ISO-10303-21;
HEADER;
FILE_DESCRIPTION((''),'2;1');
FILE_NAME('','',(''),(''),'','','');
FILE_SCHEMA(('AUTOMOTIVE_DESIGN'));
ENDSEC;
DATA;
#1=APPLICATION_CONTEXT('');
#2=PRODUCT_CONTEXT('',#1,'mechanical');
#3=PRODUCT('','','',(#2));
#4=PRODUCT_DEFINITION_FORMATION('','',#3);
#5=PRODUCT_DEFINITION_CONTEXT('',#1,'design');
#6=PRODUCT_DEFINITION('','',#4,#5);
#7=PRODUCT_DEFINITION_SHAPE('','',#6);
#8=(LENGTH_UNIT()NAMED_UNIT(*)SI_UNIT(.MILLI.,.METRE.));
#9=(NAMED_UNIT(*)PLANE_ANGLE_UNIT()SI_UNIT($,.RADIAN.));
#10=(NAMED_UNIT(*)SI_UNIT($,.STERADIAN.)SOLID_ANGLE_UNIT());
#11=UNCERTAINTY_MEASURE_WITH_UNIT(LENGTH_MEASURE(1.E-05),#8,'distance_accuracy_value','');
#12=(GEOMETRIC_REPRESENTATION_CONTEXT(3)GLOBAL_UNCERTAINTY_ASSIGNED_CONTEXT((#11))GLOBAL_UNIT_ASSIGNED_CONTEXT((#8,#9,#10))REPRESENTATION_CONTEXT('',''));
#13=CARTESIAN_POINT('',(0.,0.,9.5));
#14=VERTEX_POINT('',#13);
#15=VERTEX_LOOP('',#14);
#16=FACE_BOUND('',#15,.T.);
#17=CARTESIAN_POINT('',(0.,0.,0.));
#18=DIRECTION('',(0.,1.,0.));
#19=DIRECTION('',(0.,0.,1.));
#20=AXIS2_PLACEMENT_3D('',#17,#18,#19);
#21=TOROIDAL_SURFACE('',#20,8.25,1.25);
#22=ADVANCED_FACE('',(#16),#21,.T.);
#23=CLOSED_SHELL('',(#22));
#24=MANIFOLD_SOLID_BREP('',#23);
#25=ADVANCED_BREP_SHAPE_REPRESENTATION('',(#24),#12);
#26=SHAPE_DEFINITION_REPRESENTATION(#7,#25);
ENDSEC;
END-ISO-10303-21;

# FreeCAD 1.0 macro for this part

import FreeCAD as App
import Part
import Sketcher

V = App.Vector
Q = App.Units.Quantity

doc = App.newDocument("Part")
params = doc.addObject("Spreadsheet::Sheet", "Params")
for row, (alias, value) in enumerate([
    ("sketch1_diameter", "2.5 mm"),
    ("revolution_angle", "360 deg"),
], start=1):
    params.set(f"A{row}", alias)
    params.set(f"B{row}", "=" + value)
    params.setAlias(f"B{row}", alias)

body = doc.addObject("PartDesign::Body", "Body")

sketch1 = body.newObject("Sketcher::SketchObject", "Sketch")
sketch1.AttachmentSupport = (doc.getObject("XY_Plane"), [""])
sketch1.MapMode = "FlatFace"
sketch1.addGeometry(Part.Circle(V(8.25, 0, 0), V(0, 0, 1), 1.25), False)
sketch1.addConstraint([
    Sketcher.Constraint("PointOnObject", 0, 3, -1),
    Sketcher.Constraint("Diameter", 0, Q("2.5 mm")),
    Sketcher.Constraint("DistanceX", -1, 1, 0, 3, Q("8.25 mm")),
])
sketch1.setExpression("Constraints[1]", "Params.sketch1_diameter")
revolution = body.newObject("PartDesign::Revolution", "Revolution")
revolution.Profile = sketch1
revolution.ReferenceAxis = (sketch1, ["V_Axis"])
revolution.setExpression("Angle", "Params.revolution_angle")

doc.recompute()
